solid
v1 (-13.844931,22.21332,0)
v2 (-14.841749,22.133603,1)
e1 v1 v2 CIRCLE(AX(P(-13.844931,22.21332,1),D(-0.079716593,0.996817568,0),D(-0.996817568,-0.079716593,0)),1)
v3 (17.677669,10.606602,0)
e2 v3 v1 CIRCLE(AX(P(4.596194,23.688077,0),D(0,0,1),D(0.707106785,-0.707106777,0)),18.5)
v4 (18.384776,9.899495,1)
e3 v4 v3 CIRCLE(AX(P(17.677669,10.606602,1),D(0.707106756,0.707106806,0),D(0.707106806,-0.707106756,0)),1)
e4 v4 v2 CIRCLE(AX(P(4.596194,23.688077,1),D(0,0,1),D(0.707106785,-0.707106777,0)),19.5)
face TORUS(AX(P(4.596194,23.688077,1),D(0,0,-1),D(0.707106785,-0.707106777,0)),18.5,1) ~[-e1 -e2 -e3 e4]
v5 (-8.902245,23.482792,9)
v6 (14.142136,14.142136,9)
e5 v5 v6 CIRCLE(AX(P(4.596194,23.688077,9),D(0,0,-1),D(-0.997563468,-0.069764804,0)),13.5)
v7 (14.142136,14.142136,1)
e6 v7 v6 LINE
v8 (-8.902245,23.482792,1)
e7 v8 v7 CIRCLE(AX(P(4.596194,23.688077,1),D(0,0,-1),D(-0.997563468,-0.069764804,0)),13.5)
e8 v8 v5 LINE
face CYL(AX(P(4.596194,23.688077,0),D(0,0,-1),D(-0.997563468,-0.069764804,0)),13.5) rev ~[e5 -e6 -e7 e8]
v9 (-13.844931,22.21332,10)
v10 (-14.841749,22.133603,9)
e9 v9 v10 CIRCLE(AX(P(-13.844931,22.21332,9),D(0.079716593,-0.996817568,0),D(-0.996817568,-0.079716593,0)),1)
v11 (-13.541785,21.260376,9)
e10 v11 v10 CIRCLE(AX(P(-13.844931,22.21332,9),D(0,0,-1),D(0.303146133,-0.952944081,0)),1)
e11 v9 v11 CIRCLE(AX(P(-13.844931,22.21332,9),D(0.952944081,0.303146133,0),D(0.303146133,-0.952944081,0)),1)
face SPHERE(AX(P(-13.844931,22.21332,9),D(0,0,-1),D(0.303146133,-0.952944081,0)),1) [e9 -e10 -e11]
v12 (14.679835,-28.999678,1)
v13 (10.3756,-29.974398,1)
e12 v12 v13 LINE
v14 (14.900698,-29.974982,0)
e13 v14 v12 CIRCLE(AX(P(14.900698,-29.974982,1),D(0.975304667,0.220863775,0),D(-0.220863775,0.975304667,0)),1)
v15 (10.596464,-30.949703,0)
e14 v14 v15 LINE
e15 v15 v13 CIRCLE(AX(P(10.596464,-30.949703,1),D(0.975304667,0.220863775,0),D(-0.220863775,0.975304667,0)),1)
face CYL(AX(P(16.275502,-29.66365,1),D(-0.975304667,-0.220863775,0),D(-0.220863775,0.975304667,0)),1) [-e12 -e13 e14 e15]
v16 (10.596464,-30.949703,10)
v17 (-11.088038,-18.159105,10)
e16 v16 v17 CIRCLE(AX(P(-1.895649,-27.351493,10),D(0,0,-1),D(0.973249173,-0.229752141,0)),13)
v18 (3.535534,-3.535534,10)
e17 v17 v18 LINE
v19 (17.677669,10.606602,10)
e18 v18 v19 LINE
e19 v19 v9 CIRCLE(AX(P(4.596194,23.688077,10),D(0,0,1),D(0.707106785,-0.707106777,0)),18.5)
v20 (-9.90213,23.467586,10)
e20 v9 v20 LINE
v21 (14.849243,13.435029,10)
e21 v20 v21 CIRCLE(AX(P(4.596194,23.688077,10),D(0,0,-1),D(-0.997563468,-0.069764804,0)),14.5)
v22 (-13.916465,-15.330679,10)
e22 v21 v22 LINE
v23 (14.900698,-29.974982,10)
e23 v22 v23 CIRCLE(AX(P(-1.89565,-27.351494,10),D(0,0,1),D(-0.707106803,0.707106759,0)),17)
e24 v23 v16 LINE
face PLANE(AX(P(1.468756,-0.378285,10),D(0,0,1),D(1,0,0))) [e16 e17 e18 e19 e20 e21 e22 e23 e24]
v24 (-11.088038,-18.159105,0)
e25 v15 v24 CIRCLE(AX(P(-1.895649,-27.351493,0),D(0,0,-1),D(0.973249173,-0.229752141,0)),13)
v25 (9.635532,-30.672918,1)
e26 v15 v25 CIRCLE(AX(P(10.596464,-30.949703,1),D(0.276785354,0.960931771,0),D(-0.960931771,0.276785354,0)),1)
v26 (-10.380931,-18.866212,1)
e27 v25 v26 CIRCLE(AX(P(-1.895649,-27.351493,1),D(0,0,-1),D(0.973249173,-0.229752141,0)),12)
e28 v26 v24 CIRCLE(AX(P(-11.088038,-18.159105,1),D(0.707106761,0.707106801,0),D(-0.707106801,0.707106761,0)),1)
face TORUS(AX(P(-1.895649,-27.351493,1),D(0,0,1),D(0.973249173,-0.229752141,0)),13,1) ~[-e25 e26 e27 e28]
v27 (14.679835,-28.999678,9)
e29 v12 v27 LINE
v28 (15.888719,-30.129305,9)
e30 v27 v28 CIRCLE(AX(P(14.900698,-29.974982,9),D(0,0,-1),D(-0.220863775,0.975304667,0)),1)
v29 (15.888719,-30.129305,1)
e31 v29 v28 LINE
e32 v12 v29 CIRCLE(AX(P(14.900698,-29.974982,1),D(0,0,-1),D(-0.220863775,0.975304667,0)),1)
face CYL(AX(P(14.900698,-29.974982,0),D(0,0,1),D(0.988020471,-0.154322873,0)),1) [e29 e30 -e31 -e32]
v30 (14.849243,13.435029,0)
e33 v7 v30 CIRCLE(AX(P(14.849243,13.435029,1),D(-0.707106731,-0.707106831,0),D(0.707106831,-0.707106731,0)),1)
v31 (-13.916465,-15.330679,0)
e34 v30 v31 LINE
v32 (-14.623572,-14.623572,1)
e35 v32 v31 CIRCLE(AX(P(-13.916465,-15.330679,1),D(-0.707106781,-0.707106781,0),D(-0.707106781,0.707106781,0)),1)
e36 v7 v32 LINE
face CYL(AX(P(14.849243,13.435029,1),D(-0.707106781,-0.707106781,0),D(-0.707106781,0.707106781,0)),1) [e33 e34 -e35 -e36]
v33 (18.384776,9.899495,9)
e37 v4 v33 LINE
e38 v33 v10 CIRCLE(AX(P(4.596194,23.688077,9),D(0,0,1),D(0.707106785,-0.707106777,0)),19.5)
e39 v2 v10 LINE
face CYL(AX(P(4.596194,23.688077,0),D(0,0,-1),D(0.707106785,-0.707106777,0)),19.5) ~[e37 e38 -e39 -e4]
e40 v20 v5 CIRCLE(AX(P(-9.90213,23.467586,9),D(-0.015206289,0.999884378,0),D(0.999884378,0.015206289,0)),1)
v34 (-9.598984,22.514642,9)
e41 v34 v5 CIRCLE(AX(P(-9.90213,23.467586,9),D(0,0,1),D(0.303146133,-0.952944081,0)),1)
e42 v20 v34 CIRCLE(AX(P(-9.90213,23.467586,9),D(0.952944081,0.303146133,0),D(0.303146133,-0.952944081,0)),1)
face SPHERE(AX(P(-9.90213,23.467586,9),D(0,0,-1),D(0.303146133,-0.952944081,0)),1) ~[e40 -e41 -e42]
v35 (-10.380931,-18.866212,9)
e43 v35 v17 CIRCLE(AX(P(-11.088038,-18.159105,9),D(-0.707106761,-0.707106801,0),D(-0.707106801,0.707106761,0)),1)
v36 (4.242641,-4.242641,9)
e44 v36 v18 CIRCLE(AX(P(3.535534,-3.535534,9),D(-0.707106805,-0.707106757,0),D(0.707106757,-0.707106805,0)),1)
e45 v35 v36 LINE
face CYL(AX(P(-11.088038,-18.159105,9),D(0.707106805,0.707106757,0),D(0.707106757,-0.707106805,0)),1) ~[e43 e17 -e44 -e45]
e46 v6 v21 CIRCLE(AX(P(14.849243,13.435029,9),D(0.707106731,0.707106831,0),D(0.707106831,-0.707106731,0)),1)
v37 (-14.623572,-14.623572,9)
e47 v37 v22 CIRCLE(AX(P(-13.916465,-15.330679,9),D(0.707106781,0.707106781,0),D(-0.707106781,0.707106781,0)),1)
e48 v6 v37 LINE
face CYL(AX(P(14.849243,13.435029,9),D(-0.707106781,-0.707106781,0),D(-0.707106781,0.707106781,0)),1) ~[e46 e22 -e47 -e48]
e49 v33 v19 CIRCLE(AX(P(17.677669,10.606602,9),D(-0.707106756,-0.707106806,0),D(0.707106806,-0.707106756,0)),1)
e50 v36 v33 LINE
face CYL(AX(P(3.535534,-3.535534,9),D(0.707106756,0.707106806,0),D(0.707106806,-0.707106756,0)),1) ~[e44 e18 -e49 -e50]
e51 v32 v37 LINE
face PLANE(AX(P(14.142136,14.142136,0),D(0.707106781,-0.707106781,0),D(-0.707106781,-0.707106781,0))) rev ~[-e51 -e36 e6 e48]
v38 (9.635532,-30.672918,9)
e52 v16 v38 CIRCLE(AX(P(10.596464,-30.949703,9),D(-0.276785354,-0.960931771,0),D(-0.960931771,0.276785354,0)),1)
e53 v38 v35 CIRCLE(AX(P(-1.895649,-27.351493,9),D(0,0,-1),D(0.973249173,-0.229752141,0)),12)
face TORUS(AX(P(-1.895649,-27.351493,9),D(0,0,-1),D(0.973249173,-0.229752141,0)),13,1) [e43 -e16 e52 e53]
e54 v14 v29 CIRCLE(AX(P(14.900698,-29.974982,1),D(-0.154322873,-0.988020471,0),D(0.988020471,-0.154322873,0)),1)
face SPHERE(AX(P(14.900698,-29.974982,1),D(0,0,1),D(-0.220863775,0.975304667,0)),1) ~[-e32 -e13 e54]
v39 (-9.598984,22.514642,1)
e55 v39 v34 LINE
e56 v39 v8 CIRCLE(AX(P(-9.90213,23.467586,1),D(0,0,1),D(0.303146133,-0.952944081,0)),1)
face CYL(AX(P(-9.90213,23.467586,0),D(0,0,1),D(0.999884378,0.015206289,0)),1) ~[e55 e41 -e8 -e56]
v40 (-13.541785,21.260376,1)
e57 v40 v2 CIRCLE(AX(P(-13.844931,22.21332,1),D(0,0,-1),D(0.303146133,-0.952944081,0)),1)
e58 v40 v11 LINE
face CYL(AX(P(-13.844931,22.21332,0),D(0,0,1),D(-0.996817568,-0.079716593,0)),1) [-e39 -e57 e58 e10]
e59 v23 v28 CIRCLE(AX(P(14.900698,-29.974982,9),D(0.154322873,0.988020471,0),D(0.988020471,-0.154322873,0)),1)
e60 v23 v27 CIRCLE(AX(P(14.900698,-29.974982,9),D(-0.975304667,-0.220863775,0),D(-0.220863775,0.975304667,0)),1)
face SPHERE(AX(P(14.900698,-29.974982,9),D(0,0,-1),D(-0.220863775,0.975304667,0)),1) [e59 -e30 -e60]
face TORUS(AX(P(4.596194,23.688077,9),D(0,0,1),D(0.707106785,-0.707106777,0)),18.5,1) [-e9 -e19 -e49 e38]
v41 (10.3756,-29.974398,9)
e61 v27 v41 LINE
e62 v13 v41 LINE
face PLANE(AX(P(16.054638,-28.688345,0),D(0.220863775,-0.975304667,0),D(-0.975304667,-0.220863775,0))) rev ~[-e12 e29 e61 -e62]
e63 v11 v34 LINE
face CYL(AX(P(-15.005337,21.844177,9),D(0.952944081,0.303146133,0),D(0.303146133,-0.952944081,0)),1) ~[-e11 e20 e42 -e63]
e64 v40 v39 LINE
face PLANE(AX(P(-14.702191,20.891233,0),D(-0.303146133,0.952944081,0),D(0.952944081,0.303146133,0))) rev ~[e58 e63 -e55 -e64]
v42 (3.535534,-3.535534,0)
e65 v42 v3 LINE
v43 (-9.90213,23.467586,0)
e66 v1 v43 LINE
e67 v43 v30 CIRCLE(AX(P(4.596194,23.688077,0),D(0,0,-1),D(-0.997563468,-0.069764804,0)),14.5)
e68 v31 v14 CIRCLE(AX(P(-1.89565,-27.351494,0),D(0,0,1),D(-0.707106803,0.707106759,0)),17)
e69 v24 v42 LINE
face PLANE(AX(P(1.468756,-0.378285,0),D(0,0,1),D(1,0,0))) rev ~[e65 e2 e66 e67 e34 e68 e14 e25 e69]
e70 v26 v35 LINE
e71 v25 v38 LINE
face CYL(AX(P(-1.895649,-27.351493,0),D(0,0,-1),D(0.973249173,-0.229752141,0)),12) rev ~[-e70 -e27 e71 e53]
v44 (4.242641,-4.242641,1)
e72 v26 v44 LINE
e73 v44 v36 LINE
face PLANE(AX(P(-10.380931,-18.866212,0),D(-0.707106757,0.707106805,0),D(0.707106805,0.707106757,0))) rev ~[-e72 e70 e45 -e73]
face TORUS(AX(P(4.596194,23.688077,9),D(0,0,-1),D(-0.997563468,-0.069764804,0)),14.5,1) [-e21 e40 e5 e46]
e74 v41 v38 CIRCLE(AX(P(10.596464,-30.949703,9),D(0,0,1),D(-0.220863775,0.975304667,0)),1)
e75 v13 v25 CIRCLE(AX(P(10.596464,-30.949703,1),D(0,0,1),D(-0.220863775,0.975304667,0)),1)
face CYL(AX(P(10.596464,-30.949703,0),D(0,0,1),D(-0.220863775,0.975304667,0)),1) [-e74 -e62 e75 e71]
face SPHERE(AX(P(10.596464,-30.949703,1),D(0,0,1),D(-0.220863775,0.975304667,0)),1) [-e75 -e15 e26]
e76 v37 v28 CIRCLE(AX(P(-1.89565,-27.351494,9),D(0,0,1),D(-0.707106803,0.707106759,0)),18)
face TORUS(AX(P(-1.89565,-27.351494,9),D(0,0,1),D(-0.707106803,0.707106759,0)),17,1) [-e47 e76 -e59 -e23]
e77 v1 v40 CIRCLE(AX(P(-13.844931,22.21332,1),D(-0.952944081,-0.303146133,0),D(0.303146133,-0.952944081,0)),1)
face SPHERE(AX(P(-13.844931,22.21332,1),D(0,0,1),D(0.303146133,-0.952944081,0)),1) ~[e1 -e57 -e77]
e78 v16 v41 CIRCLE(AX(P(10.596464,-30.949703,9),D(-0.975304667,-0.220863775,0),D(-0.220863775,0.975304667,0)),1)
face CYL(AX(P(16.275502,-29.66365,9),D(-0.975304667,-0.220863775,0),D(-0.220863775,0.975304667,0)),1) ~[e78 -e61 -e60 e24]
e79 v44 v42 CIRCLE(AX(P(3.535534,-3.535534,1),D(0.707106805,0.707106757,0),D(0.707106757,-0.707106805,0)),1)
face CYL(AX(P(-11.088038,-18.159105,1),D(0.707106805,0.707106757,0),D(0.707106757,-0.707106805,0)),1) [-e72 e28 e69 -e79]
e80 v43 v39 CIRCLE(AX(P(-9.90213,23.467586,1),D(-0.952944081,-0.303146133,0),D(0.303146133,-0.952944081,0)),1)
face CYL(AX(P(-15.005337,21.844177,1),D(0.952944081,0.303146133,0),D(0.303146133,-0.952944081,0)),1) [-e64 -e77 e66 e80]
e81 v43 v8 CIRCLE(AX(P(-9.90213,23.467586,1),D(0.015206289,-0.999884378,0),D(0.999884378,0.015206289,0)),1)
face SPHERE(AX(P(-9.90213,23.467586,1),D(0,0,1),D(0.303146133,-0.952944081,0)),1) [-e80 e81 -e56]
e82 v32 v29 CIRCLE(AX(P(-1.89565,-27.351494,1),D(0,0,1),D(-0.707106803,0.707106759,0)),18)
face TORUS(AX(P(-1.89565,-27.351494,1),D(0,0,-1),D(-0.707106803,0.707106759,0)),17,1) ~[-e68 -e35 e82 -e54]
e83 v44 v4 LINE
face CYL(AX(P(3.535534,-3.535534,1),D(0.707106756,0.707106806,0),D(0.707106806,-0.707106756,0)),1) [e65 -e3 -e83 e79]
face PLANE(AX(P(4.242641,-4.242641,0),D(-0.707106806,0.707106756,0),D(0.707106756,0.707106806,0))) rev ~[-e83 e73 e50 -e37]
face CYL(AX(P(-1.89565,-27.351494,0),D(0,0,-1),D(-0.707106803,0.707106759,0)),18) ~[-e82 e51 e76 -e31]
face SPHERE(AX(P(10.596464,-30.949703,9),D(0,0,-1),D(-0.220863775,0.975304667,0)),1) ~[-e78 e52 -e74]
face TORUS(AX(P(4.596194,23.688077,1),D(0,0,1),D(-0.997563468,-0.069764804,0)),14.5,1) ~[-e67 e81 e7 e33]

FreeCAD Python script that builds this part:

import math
import FreeCAD as App
import Part
import Sketcher
from FreeCAD import Vector
Q = App.Units.Quantity


def edges_at(feature, points):
    """Names of the edges that pass closest to the given points."""
    edges = feature.Shape.Edges
    near = lambda p: min(range(len(edges)), key=lambda i: edges[i].distToShape(Part.Vertex(*p))[0])
    return sorted({f"Edge{near(p) + 1}" for p in points})

doc = App.newDocument("Part")
params = doc.addObject("Spreadsheet::Sheet", "Params")
for row, (alias, value) in enumerate([
    ("sketch1_radius", "18 mm"),
    ("sketch1_radius2", "12 mm"),
    ("sketch1_radius3", "13.5 mm"),
    ("sketch1_length", "20 mm"),
    ("pad1_length", "10 mm"),
    ("fillet_radius", "1 mm"),
], start=1):
    params.set(f"A{row}", alias)
    params.set(f"B{row}", "=" + value)
    params.setAlias(f"B{row}", alias)

body = doc.addObject("PartDesign::Body", "Body")

# Sketch on XY plane
sketch1 = doc.addObject("Sketcher::SketchObject", "Sketch")
body.addObject(sketch1)
sketch1.AttachmentSupport = (doc.XY_Plane, [""])
sketch1.MapMode = "FlatFace"
sketch1.addGeometry([
    Part.ArcOfCircle(Part.Circle(Vector(5, 24, 0), Vector(0, 0, 1), 13), math.radians(-45), math.radians(184)),  # 0
    Part.LineSegment(Vector(14, 14, 0), Vector(-15, -15, 0)),  # 1
    Part.ArcOfCircle(Part.Circle(Vector(-2, -27, 0), Vector(0, 0, 1), 18), math.radians(135), math.radians(356)),  # 2
    Part.LineSegment(Vector(16, -29, 0), Vector(10, -30, 0)),  # 3
    Part.ArcOfCircle(Part.Circle(Vector(-2, -27, 0), Vector(0, 0, 1), 12), math.radians(135), math.radians(347)),  # 4
    Part.LineSegment(Vector(-10, -19, 0), Vector(4, -4, 0)),  # 5
    Part.LineSegment(Vector(4, -4, 0), Vector(18, 10, 0)),  # 6
    Part.ArcOfCircle(Part.Circle(Vector(5, 24, 0), Vector(0, 0, 1), 19), math.radians(-45), math.radians(188)),  # 7
    Part.LineSegment(Vector(-15, 21, 0), Vector(-9, 23, 0)),  # 8
], False)
sketch1.addConstraint([
    Sketcher.Constraint("Tangent", 0, 1, 1, 1),
    Sketcher.Constraint("Tangent", 1, 2, 2, 1),
    Sketcher.Constraint("Coincident", 2, 2, 3, 1),
    Sketcher.Constraint("Coincident", 3, 2, 4, 2),
    Sketcher.Constraint("Tangent", 4, 1, 5, 1),
    Sketcher.Constraint("Coincident", 5, 2, 6, 1),
    Sketcher.Constraint("Tangent", 6, 2, 7, 1),
    Sketcher.Constraint("Coincident", 7, 2, 8, 1),
    Sketcher.Constraint("Coincident", 8, 2, 0, 2),
    Sketcher.Constraint("Coincident", 4, 3, 2, 3),
    Sketcher.Constraint("Coincident", 7, 3, 0, 3),
    Sketcher.Constraint("Parallel", 1, 5),
    Sketcher.Constraint("Parallel", 5, 6),
    Sketcher.Constraint("Radius", 2, Q("18 mm")),
    Sketcher.Constraint("Radius", 4, Q("12 mm")),
    Sketcher.Constraint("Radius", 0, Q("13.5 mm")),
    Sketcher.Constraint("Angle", 1, Q("-135 deg")),
    Sketcher.Constraint("Distance", 6, Q("20 mm")),
    Sketcher.Constraint("DistanceX", 0, 1, 2, 2, Q("1.912502 mm")),
    Sketcher.Constraint("Distance", 3, Q("6.43009 mm")),
    Sketcher.Constraint("DistanceX", 2, 3, -1, 1, Q("1.89565 mm")),
    Sketcher.Constraint("DistanceY", 1, 2, -1, 1, Q("14.623572 mm")),
    Sketcher.Constraint("DistanceX", -1, 1, 3, 2, Q("9.783341 mm")),
    Sketcher.Constraint("DistanceX", 7, 2, -1, 1, Q("14.702191 mm")),
    Sketcher.Constraint("DistanceY", -1, 1, 8, 2, Q("22.746252 mm")),
])
sketch1.setExpression("Constraints[13]", "Params.sketch1_radius")
sketch1.setExpression("Constraints[14]", "Params.sketch1_radius2")
sketch1.setExpression("Constraints[15]", "Params.sketch1_radius3")
sketch1.setExpression("Constraints[17]", "Params.sketch1_length")
pad1 = doc.addObject("PartDesign::Pad", "Pad")
body.addObject(pad1)
pad1.Profile = sketch1
pad1.setExpression("Length", "Params.pad1_length")
doc.recompute()

fillet = doc.addObject("PartDesign::Fillet", "Fillet")
body.addObject(fillet)
fillet.Base = (pad1, edges_at(pad1, [
    (-14.702, 20.891, 5),
    (-8.871, 22.746, 5),
    (-11.787, 21.819, 0),
    (-11.787, 21.819, 10),
    (16.055, -28.688, 5),
    (9.783, -30.109, 5),
    (12.919, -29.398, 0),
    (12.919, -29.398, 10),
    (14.142, 14.142, 5),
    (9.324, 36.333, 0),
    (9.324, 36.333, 10),
    (-10.381, -18.866, 5),
    (-7.739, -37.833, 0),
    (-7.739, -37.833, 10),
]))
fillet.setExpression("Radius", "Params.fillet_radius")

doc.recompute()
